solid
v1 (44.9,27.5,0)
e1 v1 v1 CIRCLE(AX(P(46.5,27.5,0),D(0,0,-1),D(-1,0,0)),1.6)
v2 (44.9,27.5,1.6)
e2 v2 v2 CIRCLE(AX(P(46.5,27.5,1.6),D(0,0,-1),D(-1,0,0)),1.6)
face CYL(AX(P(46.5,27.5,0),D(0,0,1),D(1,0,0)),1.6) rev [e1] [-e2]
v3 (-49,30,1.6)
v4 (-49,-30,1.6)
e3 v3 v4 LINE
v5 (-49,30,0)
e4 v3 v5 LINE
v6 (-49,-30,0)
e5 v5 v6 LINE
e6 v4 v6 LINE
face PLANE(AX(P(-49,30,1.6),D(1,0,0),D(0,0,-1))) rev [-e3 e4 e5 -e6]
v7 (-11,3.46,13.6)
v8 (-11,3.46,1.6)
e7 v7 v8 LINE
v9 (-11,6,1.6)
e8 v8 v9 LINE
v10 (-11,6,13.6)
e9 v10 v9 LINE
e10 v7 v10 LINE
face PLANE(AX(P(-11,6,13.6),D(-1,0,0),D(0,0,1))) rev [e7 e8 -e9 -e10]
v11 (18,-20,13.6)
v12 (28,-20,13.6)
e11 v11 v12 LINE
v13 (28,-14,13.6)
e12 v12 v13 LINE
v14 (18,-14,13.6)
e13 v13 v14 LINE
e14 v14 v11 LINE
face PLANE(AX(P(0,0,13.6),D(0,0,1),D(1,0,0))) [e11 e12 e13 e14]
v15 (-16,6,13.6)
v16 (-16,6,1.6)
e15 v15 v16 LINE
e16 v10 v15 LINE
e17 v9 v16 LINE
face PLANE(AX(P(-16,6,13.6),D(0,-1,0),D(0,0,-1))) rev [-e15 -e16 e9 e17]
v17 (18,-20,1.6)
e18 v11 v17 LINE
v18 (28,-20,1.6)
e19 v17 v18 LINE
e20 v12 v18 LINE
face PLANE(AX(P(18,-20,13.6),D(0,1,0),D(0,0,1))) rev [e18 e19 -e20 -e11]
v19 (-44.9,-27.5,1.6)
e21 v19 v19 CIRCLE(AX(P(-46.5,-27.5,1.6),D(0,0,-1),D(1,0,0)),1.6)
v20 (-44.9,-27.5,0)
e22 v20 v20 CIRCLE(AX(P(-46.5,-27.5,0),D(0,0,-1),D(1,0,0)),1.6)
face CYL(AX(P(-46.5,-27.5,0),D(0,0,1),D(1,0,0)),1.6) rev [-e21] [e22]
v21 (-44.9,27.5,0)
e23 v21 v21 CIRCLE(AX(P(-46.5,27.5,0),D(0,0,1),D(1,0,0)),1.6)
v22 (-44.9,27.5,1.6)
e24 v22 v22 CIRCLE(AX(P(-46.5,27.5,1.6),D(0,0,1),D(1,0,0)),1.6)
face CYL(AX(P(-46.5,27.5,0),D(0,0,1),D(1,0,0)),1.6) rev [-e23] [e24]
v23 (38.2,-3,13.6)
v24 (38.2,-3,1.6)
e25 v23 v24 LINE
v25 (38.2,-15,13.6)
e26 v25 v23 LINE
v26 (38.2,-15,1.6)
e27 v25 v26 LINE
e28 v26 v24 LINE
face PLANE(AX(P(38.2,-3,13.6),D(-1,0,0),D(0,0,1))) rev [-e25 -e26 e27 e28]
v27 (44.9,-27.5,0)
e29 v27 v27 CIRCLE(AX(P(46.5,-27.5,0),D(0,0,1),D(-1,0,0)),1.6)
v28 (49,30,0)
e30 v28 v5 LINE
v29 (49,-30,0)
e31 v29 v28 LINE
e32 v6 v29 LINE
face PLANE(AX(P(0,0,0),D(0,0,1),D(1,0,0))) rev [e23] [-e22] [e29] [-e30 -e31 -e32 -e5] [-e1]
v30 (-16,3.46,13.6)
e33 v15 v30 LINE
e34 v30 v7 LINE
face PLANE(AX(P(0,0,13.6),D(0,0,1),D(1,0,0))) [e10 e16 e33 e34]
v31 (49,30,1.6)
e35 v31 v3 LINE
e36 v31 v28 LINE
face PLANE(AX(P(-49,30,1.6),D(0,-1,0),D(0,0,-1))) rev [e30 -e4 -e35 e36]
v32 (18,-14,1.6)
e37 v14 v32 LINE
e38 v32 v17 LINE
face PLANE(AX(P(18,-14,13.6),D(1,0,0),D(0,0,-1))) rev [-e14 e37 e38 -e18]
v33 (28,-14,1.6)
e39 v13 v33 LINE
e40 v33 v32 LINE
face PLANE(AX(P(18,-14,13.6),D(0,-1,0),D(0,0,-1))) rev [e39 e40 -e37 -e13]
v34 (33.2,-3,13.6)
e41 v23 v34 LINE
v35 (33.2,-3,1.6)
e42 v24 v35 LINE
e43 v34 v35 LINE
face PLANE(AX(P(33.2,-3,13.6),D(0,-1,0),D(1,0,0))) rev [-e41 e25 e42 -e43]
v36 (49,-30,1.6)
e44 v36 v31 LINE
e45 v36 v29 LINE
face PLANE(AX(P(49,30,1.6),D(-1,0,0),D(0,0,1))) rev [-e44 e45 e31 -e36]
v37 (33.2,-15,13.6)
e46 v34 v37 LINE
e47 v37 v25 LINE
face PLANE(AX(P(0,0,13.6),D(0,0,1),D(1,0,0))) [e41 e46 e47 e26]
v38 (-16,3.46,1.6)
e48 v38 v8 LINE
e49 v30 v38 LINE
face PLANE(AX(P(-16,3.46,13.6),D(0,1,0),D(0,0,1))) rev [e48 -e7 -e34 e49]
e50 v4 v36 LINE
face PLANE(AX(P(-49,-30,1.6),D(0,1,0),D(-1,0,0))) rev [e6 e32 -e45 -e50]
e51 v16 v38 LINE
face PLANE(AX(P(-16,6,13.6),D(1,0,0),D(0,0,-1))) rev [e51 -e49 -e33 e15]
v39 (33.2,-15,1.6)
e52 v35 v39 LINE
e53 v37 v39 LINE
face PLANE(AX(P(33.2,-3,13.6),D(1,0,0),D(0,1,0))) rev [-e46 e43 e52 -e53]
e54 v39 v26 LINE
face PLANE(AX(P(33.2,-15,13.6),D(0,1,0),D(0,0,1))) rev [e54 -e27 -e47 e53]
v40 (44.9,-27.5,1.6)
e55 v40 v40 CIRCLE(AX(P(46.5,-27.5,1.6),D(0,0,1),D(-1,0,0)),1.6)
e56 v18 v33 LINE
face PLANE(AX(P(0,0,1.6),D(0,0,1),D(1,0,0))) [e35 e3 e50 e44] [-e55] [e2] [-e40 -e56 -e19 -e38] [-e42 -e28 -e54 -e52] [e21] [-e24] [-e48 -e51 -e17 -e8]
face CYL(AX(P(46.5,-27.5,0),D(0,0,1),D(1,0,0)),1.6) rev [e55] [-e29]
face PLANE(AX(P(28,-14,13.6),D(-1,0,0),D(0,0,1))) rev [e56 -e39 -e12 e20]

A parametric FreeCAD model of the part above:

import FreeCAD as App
import Part
import Sketcher
from FreeCAD import Vector
Q = App.Units.Quantity

doc = App.newDocument("Part")
body = doc.addObject("PartDesign::Body", "Body")

sketch1 = body.newObject("Sketcher::SketchObject", "Sketch")
sketch1.AttachmentSupport = (doc.getObject("XY_Plane"), [""])
sketch1.MapMode = "FlatFace"
sketch1.addGeometry([
    Part.LineSegment(Vector(-49, 30, 0), Vector(-49, -30, 0)),
    Part.LineSegment(Vector(-49, -30, 0), Vector(49, -30, 0)),
    Part.LineSegment(Vector(49, -30, 0), Vector(49, 30, 0)),
    Part.LineSegment(Vector(49, 30, 0), Vector(-49, 30, 0)),
], False)
sketch1.addConstraint([
    Sketcher.Constraint("Coincident", 0, 2, 1, 1),
    Sketcher.Constraint("Coincident", 1, 2, 2, 1),
    Sketcher.Constraint("Coincident", 2, 2, 3, 1),
    Sketcher.Constraint("Coincident", 3, 2, 0, 1),
    Sketcher.Constraint("Vertical", 0),
    Sketcher.Constraint("Horizontal", 1),
    Sketcher.Constraint("Vertical", 2),
    Sketcher.Constraint("Horizontal", 3),
    Sketcher.Constraint("Symmetric", 0, 2, 2, 2, -1, 1),
    Sketcher.Constraint("DistanceX", 1, 1, 1, 2, Q("98 mm")),
    Sketcher.Constraint("DistanceY", 0, 2, 0, 1, Q("60 mm")),
])
pad1 = body.newObject("PartDesign::Pad", "Pad")
pad1.Profile = sketch1
pad1.Length = 1.6

sketch2 = body.newObject("Sketcher::SketchObject", "Sketch001")
sketch2.AttachmentSupport = (doc.getObject("XY_Plane"), [""])
sketch2.MapMode = "FlatFace"
sketch2.AttachmentOffset = App.Placement(Vector(0, 0, 1.6), App.Rotation())
sketch2.addGeometry(Part.Circle(Vector(-46.5, 27.5, 0), Vector(0, 0, 1), 1.6), False)
sketch2.addConstraint([
    Sketcher.Constraint("Diameter", 0, Q("3.2 mm")),
    Sketcher.Constraint("DistanceX", 0, 3, -1, 1, Q("46.5 mm")),
    Sketcher.Constraint("DistanceY", -1, 1, 0, 3, Q("27.5 mm")),
])
pocket1 = body.newObject("PartDesign::Pocket", "Pocket")
pocket1.Profile = sketch2
pocket1.Type = "ThroughAll"
doc.recompute()

mirrored = body.newObject("PartDesign::Mirrored", "Mirrored")
mirrored.Originals = [pocket1]
mirrored.MirrorPlane = (doc.getObject("XZ_Plane"), [""])
body.Tip = mirrored
doc.recompute()

mirrored2 = body.newObject("PartDesign::Mirrored", "Mirrored001")
mirrored2.Originals = [pocket1]
mirrored2.MirrorPlane = (doc.getObject("YZ_Plane"), [""])
body.Tip = mirrored2

sketch3 = body.newObject("Sketcher::SketchObject", "Sketch002")
sketch3.AttachmentSupport = (doc.getObject("XY_Plane"), [""])
sketch3.MapMode = "FlatFace"
sketch3.AttachmentOffset = App.Placement(Vector(0, 0, 1.6), App.Rotation())
sketch3.addGeometry(Part.Circle(Vector(46.5, -27.5, 0), Vector(0, 0, 1), 1.6), False)
sketch3.addConstraint([
    Sketcher.Constraint("Diameter", 0, Q("3.2 mm")),
    Sketcher.Constraint("DistanceX", -1, 1, 0, 3, Q("46.5 mm")),
    Sketcher.Constraint("DistanceY", 0, 3, -1, 1, Q("27.5 mm")),
])
pocket2 = body.newObject("PartDesign::Pocket", "Pocket001")
pocket2.Profile = sketch3
pocket2.Type = "ThroughAll"

sketch4 = body.newObject("Sketcher::SketchObject", "Sketch003")
sketch4.AttachmentSupport = (doc.getObject("XY_Plane"), [""])
sketch4.MapMode = "FlatFace"
sketch4.AttachmentOffset = App.Placement(Vector(0, 0, 1.6), App.Rotation())
sketch4.addGeometry([
    Part.LineSegment(Vector(33.2, -3, 0), Vector(33.2, -15, 0)),
    Part.LineSegment(Vector(33.2, -15, 0), Vector(38.2, -15, 0)),
    Part.LineSegment(Vector(38.2, -15, 0), Vector(38.2, -3, 0)),
    Part.LineSegment(Vector(38.2, -3, 0), Vector(33.2, -3, 0)),
    Part.LineSegment(Vector(18, -14, 0), Vector(18, -20, 0)),
    Part.LineSegment(Vector(18, -20, 0), Vector(28, -20, 0)),
    Part.LineSegment(Vector(28, -20, 0), Vector(28, -14, 0)),
    Part.LineSegment(Vector(28, -14, 0), Vector(18, -14, 0)),
    Part.LineSegment(Vector(-16, 6, 0), Vector(-16, 3.5, 0)),
    Part.LineSegment(Vector(-16, 3.5, 0), Vector(-11, 3.5, 0)),
    Part.LineSegment(Vector(-11, 3.5, 0), Vector(-11, 6, 0)),
    Part.LineSegment(Vector(-11, 6, 0), Vector(-16, 6, 0)),
], False)
sketch4.addConstraint([
    Sketcher.Constraint("Coincident", 0, 2, 1, 1),
    Sketcher.Constraint("Coincident", 1, 2, 2, 1),
    Sketcher.Constraint("Coincident", 2, 2, 3, 1),
    Sketcher.Constraint("Coincident", 3, 2, 0, 1),
    Sketcher.Constraint("Coincident", 4, 2, 5, 1),
    Sketcher.Constraint("Coincident", 5, 2, 6, 1),
    Sketcher.Constraint("Coincident", 6, 2, 7, 1),
    Sketcher.Constraint("Coincident", 7, 2, 4, 1),
    Sketcher.Constraint("Coincident", 8, 2, 9, 1),
    Sketcher.Constraint("Coincident", 9, 2, 10, 1),
    Sketcher.Constraint("Coincident", 10, 2, 11, 1),
    Sketcher.Constraint("Coincident", 11, 2, 8, 1),
    Sketcher.Constraint("Vertical", 0),
    Sketcher.Constraint("Horizontal", 1),
    Sketcher.Constraint("Vertical", 2),
    Sketcher.Constraint("Horizontal", 3),
    Sketcher.Constraint("Vertical", 4),
    Sketcher.Constraint("Horizontal", 5),
    Sketcher.Constraint("Vertical", 6),
    Sketcher.Constraint("Horizontal", 7),
    Sketcher.Constraint("Vertical", 8),
    Sketcher.Constraint("Horizontal", 9),
    Sketcher.Constraint("Vertical", 10),
    Sketcher.Constraint("Horizontal", 11),
    Sketcher.Constraint("Equal", 3, 9),
    Sketcher.Constraint("DistanceX", 1, 1, 1, 2, Q("5 mm")),
    Sketcher.Constraint("DistanceX", 5, 1, 5, 2, Q("10 mm")),
    Sketcher.Constraint("DistanceY", 0, 2, 0, 1, Q("12 mm")),
    Sketcher.Constraint("DistanceY", 4, 2, 4, 1, Q("6 mm")),
    Sketcher.Constraint("DistanceY", 0, 2, -1, 1, Q("15 mm")),
    Sketcher.Constraint("DistanceX", -1, 1, 4, 2, Q("18 mm")),
    Sketcher.Constraint("DistanceY", 4, 2, -1, 1, Q("20 mm")),
    Sketcher.Constraint("DistanceX", 8, 2, -1, 1, Q("16 mm")),
    Sketcher.Constraint("DistanceY", -1, 1, 10, 2, Q("6 mm")),
    Sketcher.Constraint("DistanceY", 8, 2, 8, 1, Q("2.54 mm")),
    Sketcher.Constraint("DistanceX", -1, 1, 0, 2, Q("33.2 mm")),
])
pad2 = body.newObject("PartDesign::Pad", "Pad001")
pad2.Profile = sketch4
pad2.Length = 12

doc.recompute()
